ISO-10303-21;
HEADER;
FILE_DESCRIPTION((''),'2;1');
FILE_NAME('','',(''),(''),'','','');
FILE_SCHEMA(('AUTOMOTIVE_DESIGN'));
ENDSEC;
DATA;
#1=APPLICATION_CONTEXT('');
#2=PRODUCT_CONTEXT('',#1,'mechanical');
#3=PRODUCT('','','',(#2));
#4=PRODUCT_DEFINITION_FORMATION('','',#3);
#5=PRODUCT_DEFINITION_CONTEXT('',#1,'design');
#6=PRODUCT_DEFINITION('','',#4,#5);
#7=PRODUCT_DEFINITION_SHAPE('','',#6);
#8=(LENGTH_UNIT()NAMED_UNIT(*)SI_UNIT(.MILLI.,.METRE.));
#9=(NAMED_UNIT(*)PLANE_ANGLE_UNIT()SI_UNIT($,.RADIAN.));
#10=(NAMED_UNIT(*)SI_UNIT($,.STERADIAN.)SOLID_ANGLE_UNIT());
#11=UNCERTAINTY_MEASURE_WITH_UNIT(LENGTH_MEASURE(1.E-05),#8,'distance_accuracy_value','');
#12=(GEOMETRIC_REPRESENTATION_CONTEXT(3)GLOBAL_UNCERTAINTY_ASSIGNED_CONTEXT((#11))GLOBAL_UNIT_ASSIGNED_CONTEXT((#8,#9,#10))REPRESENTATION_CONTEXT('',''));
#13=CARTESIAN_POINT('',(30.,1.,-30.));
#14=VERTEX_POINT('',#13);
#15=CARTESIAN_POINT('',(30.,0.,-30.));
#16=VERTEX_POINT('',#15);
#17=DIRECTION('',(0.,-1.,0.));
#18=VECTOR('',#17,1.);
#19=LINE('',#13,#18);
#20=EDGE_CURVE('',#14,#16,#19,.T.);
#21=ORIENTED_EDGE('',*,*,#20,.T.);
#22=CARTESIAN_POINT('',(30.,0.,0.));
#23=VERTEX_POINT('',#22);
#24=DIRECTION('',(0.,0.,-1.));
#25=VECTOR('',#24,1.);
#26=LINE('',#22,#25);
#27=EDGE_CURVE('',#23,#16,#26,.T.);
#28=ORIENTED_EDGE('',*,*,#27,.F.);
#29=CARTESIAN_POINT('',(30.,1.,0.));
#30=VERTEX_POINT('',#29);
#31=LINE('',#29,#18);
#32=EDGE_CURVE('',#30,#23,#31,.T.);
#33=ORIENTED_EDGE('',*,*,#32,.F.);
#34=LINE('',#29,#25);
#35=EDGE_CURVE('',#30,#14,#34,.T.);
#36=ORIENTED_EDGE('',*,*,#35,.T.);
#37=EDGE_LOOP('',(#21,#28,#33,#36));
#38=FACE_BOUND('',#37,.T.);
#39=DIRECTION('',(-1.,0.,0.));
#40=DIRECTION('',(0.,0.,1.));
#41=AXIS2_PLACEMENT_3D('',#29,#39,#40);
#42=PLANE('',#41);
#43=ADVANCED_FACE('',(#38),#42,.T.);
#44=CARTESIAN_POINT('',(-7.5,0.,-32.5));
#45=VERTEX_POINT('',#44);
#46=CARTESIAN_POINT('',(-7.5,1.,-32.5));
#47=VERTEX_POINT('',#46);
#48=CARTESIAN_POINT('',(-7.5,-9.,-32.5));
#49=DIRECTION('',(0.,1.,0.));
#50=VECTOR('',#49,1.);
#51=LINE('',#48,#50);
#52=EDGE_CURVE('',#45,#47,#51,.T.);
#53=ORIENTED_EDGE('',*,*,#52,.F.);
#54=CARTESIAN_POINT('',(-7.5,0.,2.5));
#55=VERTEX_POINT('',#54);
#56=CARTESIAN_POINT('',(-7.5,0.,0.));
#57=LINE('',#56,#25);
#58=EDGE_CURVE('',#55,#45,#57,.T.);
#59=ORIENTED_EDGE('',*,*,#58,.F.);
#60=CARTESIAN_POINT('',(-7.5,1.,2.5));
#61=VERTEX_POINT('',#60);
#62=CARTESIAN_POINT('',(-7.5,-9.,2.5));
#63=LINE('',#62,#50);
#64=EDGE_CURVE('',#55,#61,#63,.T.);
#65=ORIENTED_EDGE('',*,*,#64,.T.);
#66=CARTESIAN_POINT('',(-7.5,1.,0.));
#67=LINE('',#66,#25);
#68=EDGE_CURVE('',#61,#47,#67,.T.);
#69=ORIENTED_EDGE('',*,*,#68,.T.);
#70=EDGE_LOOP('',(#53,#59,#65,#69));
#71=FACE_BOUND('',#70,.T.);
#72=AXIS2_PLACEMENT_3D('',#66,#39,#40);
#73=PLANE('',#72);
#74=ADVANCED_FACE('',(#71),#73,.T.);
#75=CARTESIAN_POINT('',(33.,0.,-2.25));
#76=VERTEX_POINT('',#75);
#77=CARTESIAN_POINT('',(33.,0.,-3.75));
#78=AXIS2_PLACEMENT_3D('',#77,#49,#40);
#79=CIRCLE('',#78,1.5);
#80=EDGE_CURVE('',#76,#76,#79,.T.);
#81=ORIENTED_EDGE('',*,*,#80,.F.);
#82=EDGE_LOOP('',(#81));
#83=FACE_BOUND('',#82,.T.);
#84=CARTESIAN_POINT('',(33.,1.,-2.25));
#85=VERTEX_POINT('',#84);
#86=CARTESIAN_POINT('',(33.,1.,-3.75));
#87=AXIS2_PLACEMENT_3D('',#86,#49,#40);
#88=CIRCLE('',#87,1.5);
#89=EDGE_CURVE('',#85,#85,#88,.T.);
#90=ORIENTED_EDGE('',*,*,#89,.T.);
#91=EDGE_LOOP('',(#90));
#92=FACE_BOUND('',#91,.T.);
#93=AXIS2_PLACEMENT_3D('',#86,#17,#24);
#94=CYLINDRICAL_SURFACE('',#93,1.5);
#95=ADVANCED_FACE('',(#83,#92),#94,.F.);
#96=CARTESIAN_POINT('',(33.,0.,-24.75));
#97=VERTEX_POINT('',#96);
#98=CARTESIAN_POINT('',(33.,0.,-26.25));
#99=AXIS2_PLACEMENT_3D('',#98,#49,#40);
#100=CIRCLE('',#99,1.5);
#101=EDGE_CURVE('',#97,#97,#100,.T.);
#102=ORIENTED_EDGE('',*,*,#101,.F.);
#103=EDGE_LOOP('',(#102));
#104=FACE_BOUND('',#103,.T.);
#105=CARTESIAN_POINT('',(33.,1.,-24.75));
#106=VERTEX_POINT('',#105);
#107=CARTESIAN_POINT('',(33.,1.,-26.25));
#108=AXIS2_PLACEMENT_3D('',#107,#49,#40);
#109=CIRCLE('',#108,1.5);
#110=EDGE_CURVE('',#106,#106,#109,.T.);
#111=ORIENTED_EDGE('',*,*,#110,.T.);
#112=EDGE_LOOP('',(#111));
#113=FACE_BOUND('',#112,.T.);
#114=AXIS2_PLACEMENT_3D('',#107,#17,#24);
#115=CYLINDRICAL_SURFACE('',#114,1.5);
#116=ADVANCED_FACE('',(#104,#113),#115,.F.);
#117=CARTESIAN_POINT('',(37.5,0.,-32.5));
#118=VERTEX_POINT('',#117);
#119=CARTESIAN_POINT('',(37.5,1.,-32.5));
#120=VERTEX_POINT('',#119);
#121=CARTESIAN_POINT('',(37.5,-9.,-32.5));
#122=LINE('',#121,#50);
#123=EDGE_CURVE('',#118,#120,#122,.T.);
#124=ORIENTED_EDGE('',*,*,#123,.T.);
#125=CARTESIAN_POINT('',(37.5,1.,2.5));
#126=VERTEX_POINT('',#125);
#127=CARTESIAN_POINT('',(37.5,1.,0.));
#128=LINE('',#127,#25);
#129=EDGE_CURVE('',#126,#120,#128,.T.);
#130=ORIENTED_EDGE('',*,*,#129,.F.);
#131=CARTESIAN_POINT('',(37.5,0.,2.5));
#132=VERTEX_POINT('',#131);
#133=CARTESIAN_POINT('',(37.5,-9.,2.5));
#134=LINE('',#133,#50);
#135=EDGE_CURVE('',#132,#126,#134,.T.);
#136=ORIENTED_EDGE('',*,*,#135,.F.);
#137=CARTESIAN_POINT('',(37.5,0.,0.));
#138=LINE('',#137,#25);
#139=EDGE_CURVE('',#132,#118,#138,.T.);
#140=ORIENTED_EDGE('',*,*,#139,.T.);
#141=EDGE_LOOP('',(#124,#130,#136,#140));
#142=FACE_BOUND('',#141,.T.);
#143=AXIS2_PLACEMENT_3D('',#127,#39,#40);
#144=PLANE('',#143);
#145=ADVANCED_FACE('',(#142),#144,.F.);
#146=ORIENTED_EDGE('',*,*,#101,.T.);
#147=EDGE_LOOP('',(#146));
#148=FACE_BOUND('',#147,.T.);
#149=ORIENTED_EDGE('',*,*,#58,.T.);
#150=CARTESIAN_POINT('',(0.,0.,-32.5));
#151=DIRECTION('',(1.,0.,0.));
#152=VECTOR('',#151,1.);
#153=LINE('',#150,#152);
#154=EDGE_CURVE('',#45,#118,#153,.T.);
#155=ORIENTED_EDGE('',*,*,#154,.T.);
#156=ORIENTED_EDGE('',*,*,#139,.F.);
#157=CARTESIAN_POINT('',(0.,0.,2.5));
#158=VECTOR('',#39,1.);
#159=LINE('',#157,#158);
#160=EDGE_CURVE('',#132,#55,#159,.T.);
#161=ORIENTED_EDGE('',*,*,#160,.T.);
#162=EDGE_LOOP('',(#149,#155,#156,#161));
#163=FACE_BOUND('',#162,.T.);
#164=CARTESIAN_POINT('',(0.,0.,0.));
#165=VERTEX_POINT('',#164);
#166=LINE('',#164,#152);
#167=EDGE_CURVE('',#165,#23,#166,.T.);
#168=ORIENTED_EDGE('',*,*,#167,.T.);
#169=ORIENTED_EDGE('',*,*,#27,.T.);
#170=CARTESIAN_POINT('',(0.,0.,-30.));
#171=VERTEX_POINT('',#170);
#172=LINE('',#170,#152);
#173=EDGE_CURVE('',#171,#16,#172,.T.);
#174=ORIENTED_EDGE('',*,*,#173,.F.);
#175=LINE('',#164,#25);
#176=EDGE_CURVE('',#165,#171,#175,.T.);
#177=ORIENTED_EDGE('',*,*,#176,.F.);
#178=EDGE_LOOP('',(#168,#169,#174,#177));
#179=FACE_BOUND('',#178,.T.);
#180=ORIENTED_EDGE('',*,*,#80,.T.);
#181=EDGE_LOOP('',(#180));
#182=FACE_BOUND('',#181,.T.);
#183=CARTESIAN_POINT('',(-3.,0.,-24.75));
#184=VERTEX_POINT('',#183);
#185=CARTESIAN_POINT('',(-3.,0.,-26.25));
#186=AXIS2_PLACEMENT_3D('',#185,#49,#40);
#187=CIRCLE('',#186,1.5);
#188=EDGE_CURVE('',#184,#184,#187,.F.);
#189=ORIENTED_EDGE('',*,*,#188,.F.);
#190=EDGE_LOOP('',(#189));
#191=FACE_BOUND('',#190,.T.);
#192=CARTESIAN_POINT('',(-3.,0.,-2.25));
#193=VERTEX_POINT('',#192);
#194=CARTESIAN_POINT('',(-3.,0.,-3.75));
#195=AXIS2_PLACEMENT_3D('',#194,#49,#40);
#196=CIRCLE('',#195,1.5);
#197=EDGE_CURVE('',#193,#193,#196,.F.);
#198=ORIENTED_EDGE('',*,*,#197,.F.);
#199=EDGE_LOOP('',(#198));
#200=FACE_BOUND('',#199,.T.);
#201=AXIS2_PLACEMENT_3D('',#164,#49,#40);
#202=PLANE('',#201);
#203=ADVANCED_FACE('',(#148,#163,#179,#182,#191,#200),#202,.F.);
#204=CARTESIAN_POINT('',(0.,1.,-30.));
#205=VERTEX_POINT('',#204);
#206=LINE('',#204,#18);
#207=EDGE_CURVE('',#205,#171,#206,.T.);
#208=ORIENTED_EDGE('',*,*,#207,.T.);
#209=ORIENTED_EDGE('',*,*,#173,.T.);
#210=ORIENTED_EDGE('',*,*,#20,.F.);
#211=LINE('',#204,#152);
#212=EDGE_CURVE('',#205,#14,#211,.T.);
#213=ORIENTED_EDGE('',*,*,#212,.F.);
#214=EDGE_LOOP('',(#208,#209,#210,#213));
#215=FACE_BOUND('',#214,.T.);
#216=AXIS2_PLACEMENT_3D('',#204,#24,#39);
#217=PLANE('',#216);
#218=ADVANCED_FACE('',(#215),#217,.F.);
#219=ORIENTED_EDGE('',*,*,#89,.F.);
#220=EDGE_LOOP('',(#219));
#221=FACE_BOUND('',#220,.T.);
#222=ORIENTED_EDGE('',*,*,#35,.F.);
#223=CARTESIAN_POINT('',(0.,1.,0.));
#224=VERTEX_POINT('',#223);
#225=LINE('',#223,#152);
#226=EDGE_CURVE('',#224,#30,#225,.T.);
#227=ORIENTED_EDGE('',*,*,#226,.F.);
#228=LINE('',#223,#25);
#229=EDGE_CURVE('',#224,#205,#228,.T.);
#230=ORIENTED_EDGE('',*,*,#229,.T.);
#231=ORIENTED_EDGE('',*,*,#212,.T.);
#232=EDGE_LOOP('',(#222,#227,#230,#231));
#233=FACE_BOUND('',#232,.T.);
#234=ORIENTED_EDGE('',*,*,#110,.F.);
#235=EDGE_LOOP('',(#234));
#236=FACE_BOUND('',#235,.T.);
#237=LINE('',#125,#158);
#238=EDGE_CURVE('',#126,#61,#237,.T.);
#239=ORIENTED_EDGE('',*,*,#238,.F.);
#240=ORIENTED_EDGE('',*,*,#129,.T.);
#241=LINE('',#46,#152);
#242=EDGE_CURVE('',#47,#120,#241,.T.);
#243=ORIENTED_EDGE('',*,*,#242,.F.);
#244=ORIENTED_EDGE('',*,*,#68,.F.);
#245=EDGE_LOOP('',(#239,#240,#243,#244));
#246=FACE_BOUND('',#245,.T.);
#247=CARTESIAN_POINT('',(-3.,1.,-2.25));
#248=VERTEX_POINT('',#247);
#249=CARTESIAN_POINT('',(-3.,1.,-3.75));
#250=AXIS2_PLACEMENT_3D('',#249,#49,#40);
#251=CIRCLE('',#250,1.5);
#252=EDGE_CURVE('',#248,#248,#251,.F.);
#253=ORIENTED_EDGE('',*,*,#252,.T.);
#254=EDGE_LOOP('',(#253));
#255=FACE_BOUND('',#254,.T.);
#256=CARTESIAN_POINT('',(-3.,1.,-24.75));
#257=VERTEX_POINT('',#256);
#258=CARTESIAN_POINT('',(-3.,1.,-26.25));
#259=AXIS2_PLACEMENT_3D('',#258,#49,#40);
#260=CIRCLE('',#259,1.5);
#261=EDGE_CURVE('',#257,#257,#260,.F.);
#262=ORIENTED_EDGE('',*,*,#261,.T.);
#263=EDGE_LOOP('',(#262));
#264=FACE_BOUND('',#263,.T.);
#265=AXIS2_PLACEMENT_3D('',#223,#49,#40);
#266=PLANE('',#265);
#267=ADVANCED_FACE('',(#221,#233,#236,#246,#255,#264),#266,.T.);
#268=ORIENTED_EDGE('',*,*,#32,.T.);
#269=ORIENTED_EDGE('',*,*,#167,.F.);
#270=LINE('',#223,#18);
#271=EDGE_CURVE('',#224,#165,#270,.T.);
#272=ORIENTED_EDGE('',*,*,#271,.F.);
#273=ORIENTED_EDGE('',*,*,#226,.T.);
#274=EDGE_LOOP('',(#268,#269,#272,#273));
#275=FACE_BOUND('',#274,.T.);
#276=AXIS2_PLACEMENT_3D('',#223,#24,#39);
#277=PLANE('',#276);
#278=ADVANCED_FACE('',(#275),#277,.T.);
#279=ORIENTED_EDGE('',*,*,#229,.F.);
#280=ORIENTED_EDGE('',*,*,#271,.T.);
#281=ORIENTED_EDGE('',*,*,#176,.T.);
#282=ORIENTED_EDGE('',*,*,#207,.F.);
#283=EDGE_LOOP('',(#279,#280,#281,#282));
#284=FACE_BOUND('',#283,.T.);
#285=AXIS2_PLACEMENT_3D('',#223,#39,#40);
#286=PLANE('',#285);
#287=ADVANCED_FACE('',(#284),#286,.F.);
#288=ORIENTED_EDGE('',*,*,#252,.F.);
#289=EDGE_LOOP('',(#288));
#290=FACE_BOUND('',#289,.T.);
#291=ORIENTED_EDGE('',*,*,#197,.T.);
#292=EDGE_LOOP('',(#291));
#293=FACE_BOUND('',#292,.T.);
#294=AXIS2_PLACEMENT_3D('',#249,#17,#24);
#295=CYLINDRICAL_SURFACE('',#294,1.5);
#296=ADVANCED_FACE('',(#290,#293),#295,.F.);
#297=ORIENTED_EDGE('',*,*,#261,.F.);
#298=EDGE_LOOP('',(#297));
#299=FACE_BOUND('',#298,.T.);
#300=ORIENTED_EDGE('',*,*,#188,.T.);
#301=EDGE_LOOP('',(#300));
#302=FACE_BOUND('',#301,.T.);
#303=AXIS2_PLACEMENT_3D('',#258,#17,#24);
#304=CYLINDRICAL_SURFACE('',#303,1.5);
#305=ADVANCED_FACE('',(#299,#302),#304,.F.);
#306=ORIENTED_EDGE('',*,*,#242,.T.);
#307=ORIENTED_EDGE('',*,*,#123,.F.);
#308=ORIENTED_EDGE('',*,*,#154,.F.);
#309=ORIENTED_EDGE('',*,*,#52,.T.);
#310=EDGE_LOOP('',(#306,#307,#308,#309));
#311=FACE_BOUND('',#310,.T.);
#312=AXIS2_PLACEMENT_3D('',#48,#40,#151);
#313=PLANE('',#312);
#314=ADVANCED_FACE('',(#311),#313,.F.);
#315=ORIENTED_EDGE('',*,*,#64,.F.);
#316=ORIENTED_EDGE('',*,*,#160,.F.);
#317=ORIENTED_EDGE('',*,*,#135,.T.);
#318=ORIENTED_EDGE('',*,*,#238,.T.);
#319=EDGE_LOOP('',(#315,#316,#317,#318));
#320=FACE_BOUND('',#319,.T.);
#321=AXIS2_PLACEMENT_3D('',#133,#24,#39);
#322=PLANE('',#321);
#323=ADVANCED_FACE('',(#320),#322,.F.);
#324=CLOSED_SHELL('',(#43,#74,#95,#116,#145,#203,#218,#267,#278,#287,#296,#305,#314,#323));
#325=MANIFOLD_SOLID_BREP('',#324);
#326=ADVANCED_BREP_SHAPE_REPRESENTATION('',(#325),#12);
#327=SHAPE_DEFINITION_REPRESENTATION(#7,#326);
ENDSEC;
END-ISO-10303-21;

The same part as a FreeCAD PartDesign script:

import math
import FreeCAD as App
import Part
import Sketcher

V = App.Vector
Q = App.Units.Quantity

doc = App.newDocument("Part")
params = doc.addObject("Spreadsheet::Sheet", "Params")
for row, (alias, value) in enumerate([
    ("sketch1_diameter", "3 mm"),
    ("sketch1_radius", "3.500001 mm"),
    ("sketch1_width", "45 mm"),
    ("sketch1_width2", "30 mm"),
    ("pad1_length", "1 mm"),
    ("sketch2_width", "45 mm"),
    ("sketch2_height", "5 mm"),
    ("pocket1_length", "10 mm"),
], start=1):
    params.set(f"A{row}", alias)
    params.set(f"B{row}", "=" + value)
    params.setAlias(f"B{row}", alias)

body = doc.addObject("PartDesign::Body", "Body")

sketch1 = body.newObject("Sketcher::SketchObject", "Sketch")
sketch1.AttachmentSupport = (doc.getObject("XZ_Plane"), [""])
sketch1.MapMode = "FlatFace"
sketch1.addGeometry([
    Part.ArcOfCircle(Part.Circle(V(-4.974873, 4.974873, 0), V(0, 0, 1), 3.500001), math.radians(133.824463), math.radians(136.175537)),
    Part.LineSegment(V(-7.398453, 7.5, 0), V(37.5, 7.5, 0)),
    Part.LineSegment(V(37.5, 7.5, 0), V(37.5, -37.5, 0)),
    Part.LineSegment(V(37.5, -37.5, 0), V(-7.5, -37.5, 0)),
    Part.LineSegment(V(-7.5, -37.5, 0), V(-7.5, 7.398453, 0)),
    Part.Circle(V(-3, -3.75, 0), V(0, 0, 1), 1.5),
    Part.Circle(V(33, -3.75, 0), V(0, 0, 1), 1.5),
    Part.Circle(V(-3, -26.25, 0), V(0, 0, 1), 1.5),
    Part.LineSegment(V(30, 0, 0), V(0, 0, 0)),
    Part.LineSegment(V(0, 0, 0), V(0, -30, 0)),
    Part.LineSegment(V(0, -30, 0), V(30, -30, 0)),
    Part.LineSegment(V(30, -30, 0), V(30, 0, 0)),
    Part.Circle(V(33, -26.25, 0), V(0, 0, 1), 1.5),
], False)
sketch1.addConstraint([
    Sketcher.Constraint("Coincident", 0, 1, 1, 1),
    Sketcher.Constraint("Coincident", 1, 2, 2, 1),
    Sketcher.Constraint("Coincident", 2, 2, 3, 1),
    Sketcher.Constraint("Coincident", 3, 2, 4, 1),
    Sketcher.Constraint("Coincident", 4, 2, 0, 2),
    Sketcher.Constraint("Coincident", 8, 2, 9, 1),
    Sketcher.Constraint("Coincident", 9, 2, 10, 1),
    Sketcher.Constraint("Coincident", 10, 2, 11, 1),
    Sketcher.Constraint("Coincident", 11, 2, 8, 1),
    Sketcher.Constraint("Horizontal", 1),
    Sketcher.Constraint("Vertical", 2),
    Sketcher.Constraint("Horizontal", 3),
    Sketcher.Constraint("Vertical", 4),
    Sketcher.Constraint("Horizontal", 8),
    Sketcher.Constraint("Vertical", 9),
    Sketcher.Constraint("Horizontal", 10),
    Sketcher.Constraint("Vertical", 11),
    Sketcher.Constraint("Coincident", 8, 2, -1, 1),
    Sketcher.Constraint("Equal", 5, 6),
    Sketcher.Constraint("Equal", 6, 7),
    Sketcher.Constraint("Equal", 7, 12),
    Sketcher.Constraint("Horizontal", 5, 3, 6, 3),
    Sketcher.Constraint("Horizontal", 7, 3, 12, 3),
    Sketcher.Constraint("Vertical", 5, 3, 7, 3),
    Sketcher.Constraint("Vertical", 6, 3, 12, 3),
    Sketcher.Constraint("Equal", 3, 2),
    Sketcher.Constraint("Equal", 1, 4),
    Sketcher.Constraint("Equal", 10, 9),
    Sketcher.Constraint("Diameter", 5, Q("3 mm")),
    Sketcher.Constraint("Radius", 0, Q("3.500001 mm")),
    Sketcher.Constraint("DistanceX", 3, 2, 3, 1, Q("45 mm")),
    Sketcher.Constraint("DistanceX", 8, 2, 8, 1, Q("30 mm")),
    Sketcher.Constraint("DistanceX", 5, 3, -1, 1, Q("3 mm")),
    Sketcher.Constraint("DistanceX", -1, 1, 6, 3, Q("33 mm")),
    Sketcher.Constraint("DistanceY", -1, 1, 0, 1, Q("7.5 mm")),
    Sketcher.Constraint("DistanceX", -1, 1, 1, 2, Q("37.5 mm")),
    Sketcher.Constraint("DistanceY", 7, 3, 5, 3, Q("22.5 mm")),
    Sketcher.Constraint("DistanceY", 5, 3, -1, 1, Q("3.75 mm")),
    Sketcher.Constraint("DistanceX", 1, 1, 1, 2, Q("44.898453 mm")),
])
sketch1.setExpression("Constraints[28]", "Params.sketch1_diameter")
sketch1.setExpression("Constraints[29]", "Params.sketch1_radius")
sketch1.setExpression("Constraints[30]", "Params.sketch1_width")
sketch1.setExpression("Constraints[31]", "Params.sketch1_width2")
pad1 = body.newObject("PartDesign::Pad", "Pad")
pad1.Profile = sketch1
pad1.setExpression("Length", "Params.pad1_length")
pad1.Reversed = True

sketch2 = body.newObject("Sketcher::SketchObject", "Sketch001")
sketch2.AttachmentSupport = (doc.getObject("XZ_Plane"), [""])
sketch2.MapMode = "FlatFace"
sketch2.AttachmentOffset = App.Placement(V(0, 0, -1), App.Rotation())
sketch2.addGeometry([
    Part.LineSegment(V(-7.5, -37.5, 0), V(-7.5, -32.5, 0)),
    Part.LineSegment(V(-7.5, -32.5, 0), V(37.5, -32.5, 0)),
    Part.LineSegment(V(37.5, -32.5, 0), V(37.5, -37.5, 0)),
    Part.LineSegment(V(37.5, -37.5, 0), V(-7.5, -37.5, 0)),
    Part.LineSegment(V(-7.5, 2.5, 0), V(-7.5, 7.5, 0)),
    Part.LineSegment(V(-7.5, 7.5, 0), V(37.5, 7.5, 0)),
    Part.LineSegment(V(37.5, 7.5, 0), V(37.5, 2.5, 0)),
    Part.LineSegment(V(37.5, 2.5, 0), V(-7.5, 2.5, 0)),
], False)
sketch2.addConstraint([
    Sketcher.Constraint("Coincident", 0, 2, 1, 1),
    Sketcher.Constraint("Coincident", 1, 2, 2, 1),
    Sketcher.Constraint("Coincident", 2, 2, 3, 1),
    Sketcher.Constraint("Coincident", 3, 2, 0, 1),
    Sketcher.Constraint("Coincident", 4, 2, 5, 1),
    Sketcher.Constraint("Coincident", 5, 2, 6, 1),
    Sketcher.Constraint("Coincident", 6, 2, 7, 1),
    Sketcher.Constraint("Coincident", 7, 2, 4, 1),
    Sketcher.Constraint("Vertical", 0),
    Sketcher.Constraint("Horizontal", 1),
    Sketcher.Constraint("Vertical", 2),
    Sketcher.Constraint("Horizontal", 3),
    Sketcher.Constraint("Vertical", 4),
    Sketcher.Constraint("Horizontal", 5),
    Sketcher.Constraint("Vertical", 6),
    Sketcher.Constraint("Horizontal", 7),
    Sketcher.Constraint("Vertical", 3, 2, 4, 2),
    Sketcher.Constraint("Vertical", 2, 2, 5, 2),
    Sketcher.Constraint("Equal", 2, 4),
    Sketcher.Constraint("DistanceX", 1, 1, 1, 2, Q("45 mm")),
    Sketcher.Constraint("DistanceY", 0, 1, 0, 2, Q("5 mm")),
    Sketcher.Constraint("DistanceY", 0, 2, 4, 2, Q("40 mm")),
    Sketcher.Constraint("DistanceX", 0, 2, -1, 1, Q("7.5 mm")),
    Sketcher.Constraint("DistanceY", 0, 2, -1, 1, Q("32.5 mm")),
])
sketch2.setExpression("Constraints[19]", "Params.sketch2_width")
sketch2.setExpression("Constraints[20]", "Params.sketch2_height")
pocket1 = body.newObject("PartDesign::Pocket", "Pocket")
pocket1.Profile = sketch2
pocket1.setExpression("Length", "Params.pocket1_length")
pocket1.Reversed = True

doc.recompute()
